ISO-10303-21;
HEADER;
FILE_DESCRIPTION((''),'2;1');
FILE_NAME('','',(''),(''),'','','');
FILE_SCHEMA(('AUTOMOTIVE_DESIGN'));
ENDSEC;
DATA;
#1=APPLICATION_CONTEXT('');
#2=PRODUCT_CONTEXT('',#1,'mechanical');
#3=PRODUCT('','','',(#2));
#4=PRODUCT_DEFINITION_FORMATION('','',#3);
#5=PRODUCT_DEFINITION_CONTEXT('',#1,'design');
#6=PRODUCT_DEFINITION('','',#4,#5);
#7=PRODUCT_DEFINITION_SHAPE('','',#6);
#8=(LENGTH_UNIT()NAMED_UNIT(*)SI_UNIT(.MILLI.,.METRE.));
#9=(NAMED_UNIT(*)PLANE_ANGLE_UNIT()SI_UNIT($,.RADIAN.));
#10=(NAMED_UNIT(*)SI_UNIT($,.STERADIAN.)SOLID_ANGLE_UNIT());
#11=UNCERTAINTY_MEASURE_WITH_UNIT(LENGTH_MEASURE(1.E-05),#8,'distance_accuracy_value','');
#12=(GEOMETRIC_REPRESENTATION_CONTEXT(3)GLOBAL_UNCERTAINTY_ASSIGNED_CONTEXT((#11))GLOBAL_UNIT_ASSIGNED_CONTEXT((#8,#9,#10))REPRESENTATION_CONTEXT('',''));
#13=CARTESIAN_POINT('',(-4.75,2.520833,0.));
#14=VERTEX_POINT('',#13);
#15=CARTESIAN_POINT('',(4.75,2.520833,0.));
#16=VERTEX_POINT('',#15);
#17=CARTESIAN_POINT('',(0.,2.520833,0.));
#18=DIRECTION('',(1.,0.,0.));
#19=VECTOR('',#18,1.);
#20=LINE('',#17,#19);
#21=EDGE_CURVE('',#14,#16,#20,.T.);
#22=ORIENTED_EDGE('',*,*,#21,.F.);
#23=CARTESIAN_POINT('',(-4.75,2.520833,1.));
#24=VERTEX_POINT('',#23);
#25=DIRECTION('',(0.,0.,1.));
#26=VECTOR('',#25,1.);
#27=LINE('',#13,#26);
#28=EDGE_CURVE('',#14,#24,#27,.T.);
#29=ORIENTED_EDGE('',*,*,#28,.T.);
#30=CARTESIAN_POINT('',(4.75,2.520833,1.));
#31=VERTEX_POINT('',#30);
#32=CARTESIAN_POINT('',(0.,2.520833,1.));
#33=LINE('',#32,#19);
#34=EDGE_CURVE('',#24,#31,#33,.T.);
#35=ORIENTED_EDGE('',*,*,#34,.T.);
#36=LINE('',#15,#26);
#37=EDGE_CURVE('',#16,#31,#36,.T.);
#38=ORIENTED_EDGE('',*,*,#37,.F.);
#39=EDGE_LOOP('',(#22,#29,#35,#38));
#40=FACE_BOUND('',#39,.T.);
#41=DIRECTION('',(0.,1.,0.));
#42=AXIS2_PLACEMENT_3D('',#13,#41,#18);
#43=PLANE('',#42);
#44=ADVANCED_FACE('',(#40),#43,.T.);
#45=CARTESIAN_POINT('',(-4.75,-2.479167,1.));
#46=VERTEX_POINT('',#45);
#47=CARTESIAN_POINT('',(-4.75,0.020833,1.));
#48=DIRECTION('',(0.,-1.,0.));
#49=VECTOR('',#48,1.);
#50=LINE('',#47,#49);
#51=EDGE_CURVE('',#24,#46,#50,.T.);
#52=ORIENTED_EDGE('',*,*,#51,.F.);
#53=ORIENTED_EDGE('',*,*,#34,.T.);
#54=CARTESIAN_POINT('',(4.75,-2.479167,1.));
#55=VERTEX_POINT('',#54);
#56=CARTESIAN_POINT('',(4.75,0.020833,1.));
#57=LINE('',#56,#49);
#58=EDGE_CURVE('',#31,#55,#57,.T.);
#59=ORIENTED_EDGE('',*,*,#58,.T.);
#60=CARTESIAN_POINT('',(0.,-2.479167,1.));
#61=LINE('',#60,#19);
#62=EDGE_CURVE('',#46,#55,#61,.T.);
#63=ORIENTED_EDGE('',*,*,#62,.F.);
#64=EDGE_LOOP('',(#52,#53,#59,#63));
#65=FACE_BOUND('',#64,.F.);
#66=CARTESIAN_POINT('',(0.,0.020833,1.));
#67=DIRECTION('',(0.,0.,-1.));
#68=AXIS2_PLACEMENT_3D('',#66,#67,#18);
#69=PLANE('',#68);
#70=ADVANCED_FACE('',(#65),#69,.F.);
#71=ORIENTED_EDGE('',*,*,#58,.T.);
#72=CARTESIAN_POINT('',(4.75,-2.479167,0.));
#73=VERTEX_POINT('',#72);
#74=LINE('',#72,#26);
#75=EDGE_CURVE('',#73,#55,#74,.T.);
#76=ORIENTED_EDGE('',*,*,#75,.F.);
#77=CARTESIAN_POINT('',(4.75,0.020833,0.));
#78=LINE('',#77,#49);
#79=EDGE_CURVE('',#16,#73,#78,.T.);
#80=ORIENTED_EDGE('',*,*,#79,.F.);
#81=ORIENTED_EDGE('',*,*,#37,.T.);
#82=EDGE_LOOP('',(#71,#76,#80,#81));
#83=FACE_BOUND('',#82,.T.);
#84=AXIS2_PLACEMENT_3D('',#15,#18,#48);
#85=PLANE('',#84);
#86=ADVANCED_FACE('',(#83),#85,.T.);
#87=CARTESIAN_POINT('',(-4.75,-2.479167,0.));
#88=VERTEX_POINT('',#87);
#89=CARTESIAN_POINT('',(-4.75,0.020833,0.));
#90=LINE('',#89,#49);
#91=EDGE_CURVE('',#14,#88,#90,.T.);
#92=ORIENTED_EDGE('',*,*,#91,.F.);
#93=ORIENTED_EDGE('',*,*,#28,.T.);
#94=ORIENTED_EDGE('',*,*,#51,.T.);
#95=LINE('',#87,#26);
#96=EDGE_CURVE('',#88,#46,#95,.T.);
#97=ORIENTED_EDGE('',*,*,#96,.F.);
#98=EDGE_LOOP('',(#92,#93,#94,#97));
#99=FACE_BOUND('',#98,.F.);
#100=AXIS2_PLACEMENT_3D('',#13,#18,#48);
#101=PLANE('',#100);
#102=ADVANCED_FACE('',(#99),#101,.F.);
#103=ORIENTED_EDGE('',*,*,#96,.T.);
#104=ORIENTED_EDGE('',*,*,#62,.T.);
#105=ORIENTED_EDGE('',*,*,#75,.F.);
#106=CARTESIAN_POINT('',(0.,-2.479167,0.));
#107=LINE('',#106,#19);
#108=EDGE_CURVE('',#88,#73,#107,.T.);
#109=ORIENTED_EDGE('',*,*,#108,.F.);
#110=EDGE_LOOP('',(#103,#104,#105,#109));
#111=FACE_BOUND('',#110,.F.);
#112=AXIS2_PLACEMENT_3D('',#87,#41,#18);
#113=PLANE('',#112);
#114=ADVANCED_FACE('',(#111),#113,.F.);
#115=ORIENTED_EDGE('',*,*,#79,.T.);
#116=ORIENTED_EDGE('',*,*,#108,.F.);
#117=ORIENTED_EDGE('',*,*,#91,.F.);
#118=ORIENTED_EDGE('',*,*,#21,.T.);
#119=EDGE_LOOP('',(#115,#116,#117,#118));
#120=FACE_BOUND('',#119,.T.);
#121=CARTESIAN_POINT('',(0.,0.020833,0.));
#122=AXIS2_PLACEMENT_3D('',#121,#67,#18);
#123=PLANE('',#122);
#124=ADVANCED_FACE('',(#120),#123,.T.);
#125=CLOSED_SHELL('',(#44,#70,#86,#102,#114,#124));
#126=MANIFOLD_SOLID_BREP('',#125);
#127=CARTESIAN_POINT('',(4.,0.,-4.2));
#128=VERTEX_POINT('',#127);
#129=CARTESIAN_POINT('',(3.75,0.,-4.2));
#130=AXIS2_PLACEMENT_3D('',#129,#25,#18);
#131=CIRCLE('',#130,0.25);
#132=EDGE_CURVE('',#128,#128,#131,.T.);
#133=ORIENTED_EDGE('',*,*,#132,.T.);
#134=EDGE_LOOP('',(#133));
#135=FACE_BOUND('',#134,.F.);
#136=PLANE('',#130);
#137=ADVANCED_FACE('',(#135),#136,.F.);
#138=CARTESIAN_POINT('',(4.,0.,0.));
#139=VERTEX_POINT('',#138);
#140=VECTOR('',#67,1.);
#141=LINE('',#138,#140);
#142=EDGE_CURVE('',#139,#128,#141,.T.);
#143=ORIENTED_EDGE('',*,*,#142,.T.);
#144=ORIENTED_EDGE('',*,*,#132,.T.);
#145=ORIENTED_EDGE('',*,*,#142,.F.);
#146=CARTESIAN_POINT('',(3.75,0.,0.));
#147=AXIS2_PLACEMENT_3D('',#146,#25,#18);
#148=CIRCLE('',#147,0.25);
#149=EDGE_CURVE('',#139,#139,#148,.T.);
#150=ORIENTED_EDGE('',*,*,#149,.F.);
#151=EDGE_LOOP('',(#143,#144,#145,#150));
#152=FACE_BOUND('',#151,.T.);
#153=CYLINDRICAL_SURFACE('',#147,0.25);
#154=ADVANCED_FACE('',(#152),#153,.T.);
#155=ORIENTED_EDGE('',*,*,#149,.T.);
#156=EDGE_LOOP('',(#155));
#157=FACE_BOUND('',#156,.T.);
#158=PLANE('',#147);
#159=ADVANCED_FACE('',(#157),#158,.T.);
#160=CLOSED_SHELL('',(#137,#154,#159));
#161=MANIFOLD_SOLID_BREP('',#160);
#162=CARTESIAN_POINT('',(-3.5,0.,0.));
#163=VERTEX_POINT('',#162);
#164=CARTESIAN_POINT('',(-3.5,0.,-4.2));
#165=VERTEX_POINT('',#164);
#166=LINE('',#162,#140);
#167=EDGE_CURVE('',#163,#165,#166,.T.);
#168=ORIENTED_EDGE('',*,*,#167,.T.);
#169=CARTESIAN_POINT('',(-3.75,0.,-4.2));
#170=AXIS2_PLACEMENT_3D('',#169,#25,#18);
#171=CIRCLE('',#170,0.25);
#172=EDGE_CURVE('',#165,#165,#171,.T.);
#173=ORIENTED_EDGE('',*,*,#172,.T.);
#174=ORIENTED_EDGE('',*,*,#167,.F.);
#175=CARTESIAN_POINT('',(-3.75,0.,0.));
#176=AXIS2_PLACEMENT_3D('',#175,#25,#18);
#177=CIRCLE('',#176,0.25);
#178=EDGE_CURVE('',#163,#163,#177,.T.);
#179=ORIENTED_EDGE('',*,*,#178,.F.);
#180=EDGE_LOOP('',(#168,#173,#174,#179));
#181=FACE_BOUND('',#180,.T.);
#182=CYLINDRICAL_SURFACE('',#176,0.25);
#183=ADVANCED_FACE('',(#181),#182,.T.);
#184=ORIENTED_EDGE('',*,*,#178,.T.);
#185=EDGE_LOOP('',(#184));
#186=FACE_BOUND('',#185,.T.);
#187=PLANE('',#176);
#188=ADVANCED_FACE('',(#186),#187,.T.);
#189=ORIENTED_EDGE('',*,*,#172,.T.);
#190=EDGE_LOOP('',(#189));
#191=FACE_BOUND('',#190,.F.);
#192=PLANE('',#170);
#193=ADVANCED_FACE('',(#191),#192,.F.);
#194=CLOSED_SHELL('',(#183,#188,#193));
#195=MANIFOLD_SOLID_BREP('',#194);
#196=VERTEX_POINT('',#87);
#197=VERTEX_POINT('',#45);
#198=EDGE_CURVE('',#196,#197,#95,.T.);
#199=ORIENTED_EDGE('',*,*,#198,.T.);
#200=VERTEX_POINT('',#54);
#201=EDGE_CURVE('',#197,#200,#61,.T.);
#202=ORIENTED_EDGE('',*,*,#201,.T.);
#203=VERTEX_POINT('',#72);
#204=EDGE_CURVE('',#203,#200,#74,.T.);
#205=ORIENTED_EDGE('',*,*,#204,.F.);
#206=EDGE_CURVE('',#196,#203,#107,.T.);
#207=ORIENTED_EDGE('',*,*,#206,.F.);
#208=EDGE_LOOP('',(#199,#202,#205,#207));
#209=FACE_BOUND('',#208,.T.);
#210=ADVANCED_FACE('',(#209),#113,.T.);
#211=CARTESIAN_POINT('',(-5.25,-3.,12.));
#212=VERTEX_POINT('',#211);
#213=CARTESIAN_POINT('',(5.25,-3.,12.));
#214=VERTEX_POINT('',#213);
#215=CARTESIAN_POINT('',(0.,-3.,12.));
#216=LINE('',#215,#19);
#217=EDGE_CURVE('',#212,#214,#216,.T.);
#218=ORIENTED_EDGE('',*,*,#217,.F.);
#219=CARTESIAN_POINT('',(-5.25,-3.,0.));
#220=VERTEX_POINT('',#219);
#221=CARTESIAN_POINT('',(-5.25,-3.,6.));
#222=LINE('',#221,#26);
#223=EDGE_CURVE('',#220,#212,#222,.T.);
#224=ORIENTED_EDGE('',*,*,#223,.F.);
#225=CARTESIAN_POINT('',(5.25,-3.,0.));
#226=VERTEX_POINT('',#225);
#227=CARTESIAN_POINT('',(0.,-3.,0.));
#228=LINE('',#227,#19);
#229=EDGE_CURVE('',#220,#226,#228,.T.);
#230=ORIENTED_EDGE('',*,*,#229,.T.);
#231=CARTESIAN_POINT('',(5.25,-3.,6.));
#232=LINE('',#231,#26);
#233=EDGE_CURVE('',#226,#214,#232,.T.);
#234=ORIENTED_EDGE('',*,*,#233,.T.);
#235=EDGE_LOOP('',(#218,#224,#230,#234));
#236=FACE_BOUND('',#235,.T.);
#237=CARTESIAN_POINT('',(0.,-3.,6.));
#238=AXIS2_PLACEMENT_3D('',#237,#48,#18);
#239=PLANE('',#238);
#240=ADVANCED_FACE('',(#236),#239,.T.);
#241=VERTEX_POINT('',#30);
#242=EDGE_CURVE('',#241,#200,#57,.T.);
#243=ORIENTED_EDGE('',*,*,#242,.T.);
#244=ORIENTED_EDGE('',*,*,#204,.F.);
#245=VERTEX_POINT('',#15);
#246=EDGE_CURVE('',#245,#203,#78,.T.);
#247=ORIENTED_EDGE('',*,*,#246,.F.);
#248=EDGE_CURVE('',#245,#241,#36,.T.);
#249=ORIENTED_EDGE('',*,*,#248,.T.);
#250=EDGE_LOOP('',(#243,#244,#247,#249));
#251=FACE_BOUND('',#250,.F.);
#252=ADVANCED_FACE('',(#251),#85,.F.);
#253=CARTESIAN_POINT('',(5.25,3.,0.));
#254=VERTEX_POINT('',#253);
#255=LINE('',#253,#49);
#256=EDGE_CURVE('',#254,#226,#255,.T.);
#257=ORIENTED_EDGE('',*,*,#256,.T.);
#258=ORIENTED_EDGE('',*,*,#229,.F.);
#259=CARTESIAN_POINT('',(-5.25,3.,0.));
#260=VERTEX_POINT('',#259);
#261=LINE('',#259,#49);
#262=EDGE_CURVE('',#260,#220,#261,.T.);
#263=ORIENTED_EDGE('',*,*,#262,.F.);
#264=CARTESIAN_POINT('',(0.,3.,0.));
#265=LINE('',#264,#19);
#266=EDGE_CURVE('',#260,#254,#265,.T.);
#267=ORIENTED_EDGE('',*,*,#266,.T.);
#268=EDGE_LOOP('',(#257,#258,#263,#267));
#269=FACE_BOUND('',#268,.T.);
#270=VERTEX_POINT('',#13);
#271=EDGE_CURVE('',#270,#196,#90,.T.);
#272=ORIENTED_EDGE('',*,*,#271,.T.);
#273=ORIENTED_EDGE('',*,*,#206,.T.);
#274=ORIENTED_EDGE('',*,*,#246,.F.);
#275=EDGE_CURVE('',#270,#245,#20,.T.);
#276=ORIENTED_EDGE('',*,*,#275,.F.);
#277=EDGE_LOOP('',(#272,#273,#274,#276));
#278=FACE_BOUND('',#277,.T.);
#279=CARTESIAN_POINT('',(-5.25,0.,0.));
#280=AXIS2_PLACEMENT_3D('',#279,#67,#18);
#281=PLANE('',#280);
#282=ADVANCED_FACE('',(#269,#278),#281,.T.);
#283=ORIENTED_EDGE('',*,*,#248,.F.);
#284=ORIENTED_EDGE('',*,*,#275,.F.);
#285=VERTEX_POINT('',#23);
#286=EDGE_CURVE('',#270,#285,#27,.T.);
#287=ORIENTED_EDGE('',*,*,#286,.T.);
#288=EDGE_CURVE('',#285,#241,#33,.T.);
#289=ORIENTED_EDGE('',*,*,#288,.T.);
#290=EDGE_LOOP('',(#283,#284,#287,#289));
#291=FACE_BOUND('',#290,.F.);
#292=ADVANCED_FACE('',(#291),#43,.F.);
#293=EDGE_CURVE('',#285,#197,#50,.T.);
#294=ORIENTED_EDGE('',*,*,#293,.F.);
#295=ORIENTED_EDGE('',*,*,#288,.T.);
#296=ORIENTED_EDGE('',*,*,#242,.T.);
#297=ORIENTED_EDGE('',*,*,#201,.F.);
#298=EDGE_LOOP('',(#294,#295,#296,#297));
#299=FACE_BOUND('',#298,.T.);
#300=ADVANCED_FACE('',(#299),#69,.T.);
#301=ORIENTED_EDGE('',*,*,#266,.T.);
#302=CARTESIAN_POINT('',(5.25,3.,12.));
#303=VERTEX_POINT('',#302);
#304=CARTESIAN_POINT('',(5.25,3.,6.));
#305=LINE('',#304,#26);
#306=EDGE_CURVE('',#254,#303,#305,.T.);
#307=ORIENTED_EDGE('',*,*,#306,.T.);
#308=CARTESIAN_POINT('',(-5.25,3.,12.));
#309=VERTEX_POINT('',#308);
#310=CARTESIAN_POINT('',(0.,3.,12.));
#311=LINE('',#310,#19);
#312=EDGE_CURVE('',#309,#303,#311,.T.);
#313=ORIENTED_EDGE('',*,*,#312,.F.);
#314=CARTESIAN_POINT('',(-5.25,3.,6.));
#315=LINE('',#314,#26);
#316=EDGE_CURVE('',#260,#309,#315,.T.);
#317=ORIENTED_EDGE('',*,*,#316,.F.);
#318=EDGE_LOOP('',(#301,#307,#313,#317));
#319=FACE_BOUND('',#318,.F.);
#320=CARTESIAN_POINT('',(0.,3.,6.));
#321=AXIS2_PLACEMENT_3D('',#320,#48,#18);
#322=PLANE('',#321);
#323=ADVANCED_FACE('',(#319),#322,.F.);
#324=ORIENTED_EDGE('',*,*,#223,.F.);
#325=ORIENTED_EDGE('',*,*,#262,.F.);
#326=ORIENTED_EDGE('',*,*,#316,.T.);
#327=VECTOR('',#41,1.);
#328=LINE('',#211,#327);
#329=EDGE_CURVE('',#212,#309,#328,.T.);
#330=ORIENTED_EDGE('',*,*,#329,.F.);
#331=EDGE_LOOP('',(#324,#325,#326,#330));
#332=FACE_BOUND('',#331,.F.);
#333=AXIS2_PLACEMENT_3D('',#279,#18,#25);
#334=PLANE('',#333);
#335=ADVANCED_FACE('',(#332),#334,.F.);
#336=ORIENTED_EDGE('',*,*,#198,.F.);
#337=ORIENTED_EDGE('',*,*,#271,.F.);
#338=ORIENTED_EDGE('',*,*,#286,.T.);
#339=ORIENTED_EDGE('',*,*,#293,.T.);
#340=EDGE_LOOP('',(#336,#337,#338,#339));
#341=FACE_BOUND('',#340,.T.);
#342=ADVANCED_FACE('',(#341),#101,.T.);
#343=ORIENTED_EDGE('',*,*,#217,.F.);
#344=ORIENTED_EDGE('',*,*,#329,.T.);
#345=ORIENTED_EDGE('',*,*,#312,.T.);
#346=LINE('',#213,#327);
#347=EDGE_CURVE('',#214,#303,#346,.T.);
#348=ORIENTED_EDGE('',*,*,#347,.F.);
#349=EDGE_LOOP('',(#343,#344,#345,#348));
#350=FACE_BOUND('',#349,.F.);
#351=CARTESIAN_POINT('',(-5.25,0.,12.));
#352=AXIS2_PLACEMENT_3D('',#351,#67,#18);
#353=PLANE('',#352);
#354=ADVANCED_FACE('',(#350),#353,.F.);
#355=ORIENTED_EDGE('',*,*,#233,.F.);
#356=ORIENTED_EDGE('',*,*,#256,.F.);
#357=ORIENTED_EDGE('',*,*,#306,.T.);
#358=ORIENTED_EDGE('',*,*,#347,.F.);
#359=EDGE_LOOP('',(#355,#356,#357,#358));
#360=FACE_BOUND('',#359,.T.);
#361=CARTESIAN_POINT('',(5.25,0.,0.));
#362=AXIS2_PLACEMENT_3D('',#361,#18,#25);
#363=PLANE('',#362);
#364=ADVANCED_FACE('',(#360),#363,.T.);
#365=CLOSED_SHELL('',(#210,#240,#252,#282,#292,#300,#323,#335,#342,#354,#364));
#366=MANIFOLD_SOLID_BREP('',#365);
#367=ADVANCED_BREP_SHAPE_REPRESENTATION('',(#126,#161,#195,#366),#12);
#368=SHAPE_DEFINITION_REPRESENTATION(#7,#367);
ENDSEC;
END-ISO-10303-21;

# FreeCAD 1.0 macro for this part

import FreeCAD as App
import Part
import Sketcher

doc = App.newDocument("Part")
body = doc.addObject("PartDesign::Body", "Body")

sketch1 = body.newObject("Sketcher::SketchObject", "Sketch")
sketch1.AttachmentSupport = (doc.getObject("XZ_Plane"), [""])
sketch1.MapMode = "FlatFace"
sketch1.addGeometry([
    Part.LineSegment(App.Vector(-5, 12, 0), App.Vector(-5, 0, 0)),
    Part.LineSegment(App.Vector(-5, 0, 0), App.Vector(5, 0, 0)),
    Part.LineSegment(App.Vector(5, 0, 0), App.Vector(5, 12, 0)),
    Part.LineSegment(App.Vector(5, 12, 0), App.Vector(-5, 12, 0)),
], False)
sketch1.addConstraint([
    Sketcher.Constraint("Coincident", 0, 2, 1, 1),
    Sketcher.Constraint("Coincident", 1, 2, 2, 1),
    Sketcher.Constraint("Coincident", 2, 2, 3, 1),
    Sketcher.Constraint("Coincident", 3, 2, 0, 1),
    Sketcher.Constraint("Vertical", 0),
    Sketcher.Constraint("Horizontal", 1),
    Sketcher.Constraint("Vertical", 2),
    Sketcher.Constraint("Horizontal", 3),
    Sketcher.Constraint("Symmetric", 0, 2, 1, 2, -1, 1),
    Sketcher.Constraint("DistanceY", 0, 2, 0, 1, 12.0),
    Sketcher.Constraint("DistanceX", 1, 1, 1, 2, 10.5),
])
pad1 = body.newObject("PartDesign::Pad", "Pad")
pad1.Profile = sketch1
pad1.Type = "TwoLengths"
pad1.Length = 3
pad1.Length2 = 3
body2 = doc.addObject("PartDesign::Body", "Body001")
body2.AllowCompound = True

sketch2 = body2.newObject("Sketcher::SketchObject", "Sketch001")
sketch2.AttachmentSupport = (doc.getObject("XY_Plane001"), [""])
sketch2.MapMode = "FlatFace"
sketch2.addGeometry([
    Part.Circle(App.Vector(-3.75, 0, 0), App.Vector(0, 0, 1), 0.25),
    Part.Circle(App.Vector(3.75, 0, 0), App.Vector(0, 0, 1), 0.25),
], False)
sketch2.addConstraint([
    Sketcher.Constraint("Equal", 0, 1),
    Sketcher.Constraint("Symmetric", 0, 3, 1, 3, -1, 1),
    Sketcher.Constraint("PointOnObject", 0, 3, -1),
    Sketcher.Constraint("Diameter", 0, 0.5),
    Sketcher.Constraint("DistanceX", 0, 3, 1, 3, 7.5),
])
pad2 = body2.newObject("PartDesign::Pad", "Pad001")
pad2.Profile = sketch2
pad2.Length = 4.2
pad2.Reversed = True
body3 = doc.addObject("PartDesign::Body", "Body002")

sketch3 = body3.newObject("Sketcher::SketchObject", "Sketch002")
sketch3.AttachmentSupport = (doc.getObject("XY_Plane002"), [""])
sketch3.MapMode = "FlatFace"
sketch3.addGeometry([
    Part.LineSegment(App.Vector(-5, -2, 0), App.Vector(-5, 3, 0)),
    Part.LineSegment(App.Vector(-5, 3, 0), App.Vector(5, 3, 0)),
    Part.LineSegment(App.Vector(5, 3, 0), App.Vector(5, -2, 0)),
    Part.LineSegment(App.Vector(5, -2, 0), App.Vector(-5, -2, 0)),
], False)
sketch3.addConstraint([
    Sketcher.Constraint("Coincident", 0, 2, 1, 1),
    Sketcher.Constraint("Coincident", 1, 2, 2, 1),
    Sketcher.Constraint("Coincident", 2, 2, 3, 1),
    Sketcher.Constraint("Coincident", 3, 2, 0, 1),
    Sketcher.Constraint("Vertical", 0),
    Sketcher.Constraint("Horizontal", 1),
    Sketcher.Constraint("Vertical", 2),
    Sketcher.Constraint("Horizontal", 3),
    Sketcher.Constraint("DistanceY", 0, 1, 0, 2, 5.0),
    Sketcher.Constraint("DistanceX", 1, 1, 1, 2, 9.5),
    Sketcher.Constraint("DistanceX", 0, 2, -1, 1, 4.75),
    Sketcher.Constraint("DistanceY", -1, 1, 0, 2, 2.520833),
])
pad3 = body3.newObject("PartDesign::Pad", "Pad002")
pad3.Profile = sketch3
pad3.Length = 1
doc.recompute()

body4 = doc.addObject("PartDesign::Body", "Body003")
body4.BaseFeature = body3
boolean = body.newObject("PartDesign::Boolean", "Boolean")
boolean.Type = "Cut"
boolean.addObjects([body4])
doc.recompute()

doc.recompute()
